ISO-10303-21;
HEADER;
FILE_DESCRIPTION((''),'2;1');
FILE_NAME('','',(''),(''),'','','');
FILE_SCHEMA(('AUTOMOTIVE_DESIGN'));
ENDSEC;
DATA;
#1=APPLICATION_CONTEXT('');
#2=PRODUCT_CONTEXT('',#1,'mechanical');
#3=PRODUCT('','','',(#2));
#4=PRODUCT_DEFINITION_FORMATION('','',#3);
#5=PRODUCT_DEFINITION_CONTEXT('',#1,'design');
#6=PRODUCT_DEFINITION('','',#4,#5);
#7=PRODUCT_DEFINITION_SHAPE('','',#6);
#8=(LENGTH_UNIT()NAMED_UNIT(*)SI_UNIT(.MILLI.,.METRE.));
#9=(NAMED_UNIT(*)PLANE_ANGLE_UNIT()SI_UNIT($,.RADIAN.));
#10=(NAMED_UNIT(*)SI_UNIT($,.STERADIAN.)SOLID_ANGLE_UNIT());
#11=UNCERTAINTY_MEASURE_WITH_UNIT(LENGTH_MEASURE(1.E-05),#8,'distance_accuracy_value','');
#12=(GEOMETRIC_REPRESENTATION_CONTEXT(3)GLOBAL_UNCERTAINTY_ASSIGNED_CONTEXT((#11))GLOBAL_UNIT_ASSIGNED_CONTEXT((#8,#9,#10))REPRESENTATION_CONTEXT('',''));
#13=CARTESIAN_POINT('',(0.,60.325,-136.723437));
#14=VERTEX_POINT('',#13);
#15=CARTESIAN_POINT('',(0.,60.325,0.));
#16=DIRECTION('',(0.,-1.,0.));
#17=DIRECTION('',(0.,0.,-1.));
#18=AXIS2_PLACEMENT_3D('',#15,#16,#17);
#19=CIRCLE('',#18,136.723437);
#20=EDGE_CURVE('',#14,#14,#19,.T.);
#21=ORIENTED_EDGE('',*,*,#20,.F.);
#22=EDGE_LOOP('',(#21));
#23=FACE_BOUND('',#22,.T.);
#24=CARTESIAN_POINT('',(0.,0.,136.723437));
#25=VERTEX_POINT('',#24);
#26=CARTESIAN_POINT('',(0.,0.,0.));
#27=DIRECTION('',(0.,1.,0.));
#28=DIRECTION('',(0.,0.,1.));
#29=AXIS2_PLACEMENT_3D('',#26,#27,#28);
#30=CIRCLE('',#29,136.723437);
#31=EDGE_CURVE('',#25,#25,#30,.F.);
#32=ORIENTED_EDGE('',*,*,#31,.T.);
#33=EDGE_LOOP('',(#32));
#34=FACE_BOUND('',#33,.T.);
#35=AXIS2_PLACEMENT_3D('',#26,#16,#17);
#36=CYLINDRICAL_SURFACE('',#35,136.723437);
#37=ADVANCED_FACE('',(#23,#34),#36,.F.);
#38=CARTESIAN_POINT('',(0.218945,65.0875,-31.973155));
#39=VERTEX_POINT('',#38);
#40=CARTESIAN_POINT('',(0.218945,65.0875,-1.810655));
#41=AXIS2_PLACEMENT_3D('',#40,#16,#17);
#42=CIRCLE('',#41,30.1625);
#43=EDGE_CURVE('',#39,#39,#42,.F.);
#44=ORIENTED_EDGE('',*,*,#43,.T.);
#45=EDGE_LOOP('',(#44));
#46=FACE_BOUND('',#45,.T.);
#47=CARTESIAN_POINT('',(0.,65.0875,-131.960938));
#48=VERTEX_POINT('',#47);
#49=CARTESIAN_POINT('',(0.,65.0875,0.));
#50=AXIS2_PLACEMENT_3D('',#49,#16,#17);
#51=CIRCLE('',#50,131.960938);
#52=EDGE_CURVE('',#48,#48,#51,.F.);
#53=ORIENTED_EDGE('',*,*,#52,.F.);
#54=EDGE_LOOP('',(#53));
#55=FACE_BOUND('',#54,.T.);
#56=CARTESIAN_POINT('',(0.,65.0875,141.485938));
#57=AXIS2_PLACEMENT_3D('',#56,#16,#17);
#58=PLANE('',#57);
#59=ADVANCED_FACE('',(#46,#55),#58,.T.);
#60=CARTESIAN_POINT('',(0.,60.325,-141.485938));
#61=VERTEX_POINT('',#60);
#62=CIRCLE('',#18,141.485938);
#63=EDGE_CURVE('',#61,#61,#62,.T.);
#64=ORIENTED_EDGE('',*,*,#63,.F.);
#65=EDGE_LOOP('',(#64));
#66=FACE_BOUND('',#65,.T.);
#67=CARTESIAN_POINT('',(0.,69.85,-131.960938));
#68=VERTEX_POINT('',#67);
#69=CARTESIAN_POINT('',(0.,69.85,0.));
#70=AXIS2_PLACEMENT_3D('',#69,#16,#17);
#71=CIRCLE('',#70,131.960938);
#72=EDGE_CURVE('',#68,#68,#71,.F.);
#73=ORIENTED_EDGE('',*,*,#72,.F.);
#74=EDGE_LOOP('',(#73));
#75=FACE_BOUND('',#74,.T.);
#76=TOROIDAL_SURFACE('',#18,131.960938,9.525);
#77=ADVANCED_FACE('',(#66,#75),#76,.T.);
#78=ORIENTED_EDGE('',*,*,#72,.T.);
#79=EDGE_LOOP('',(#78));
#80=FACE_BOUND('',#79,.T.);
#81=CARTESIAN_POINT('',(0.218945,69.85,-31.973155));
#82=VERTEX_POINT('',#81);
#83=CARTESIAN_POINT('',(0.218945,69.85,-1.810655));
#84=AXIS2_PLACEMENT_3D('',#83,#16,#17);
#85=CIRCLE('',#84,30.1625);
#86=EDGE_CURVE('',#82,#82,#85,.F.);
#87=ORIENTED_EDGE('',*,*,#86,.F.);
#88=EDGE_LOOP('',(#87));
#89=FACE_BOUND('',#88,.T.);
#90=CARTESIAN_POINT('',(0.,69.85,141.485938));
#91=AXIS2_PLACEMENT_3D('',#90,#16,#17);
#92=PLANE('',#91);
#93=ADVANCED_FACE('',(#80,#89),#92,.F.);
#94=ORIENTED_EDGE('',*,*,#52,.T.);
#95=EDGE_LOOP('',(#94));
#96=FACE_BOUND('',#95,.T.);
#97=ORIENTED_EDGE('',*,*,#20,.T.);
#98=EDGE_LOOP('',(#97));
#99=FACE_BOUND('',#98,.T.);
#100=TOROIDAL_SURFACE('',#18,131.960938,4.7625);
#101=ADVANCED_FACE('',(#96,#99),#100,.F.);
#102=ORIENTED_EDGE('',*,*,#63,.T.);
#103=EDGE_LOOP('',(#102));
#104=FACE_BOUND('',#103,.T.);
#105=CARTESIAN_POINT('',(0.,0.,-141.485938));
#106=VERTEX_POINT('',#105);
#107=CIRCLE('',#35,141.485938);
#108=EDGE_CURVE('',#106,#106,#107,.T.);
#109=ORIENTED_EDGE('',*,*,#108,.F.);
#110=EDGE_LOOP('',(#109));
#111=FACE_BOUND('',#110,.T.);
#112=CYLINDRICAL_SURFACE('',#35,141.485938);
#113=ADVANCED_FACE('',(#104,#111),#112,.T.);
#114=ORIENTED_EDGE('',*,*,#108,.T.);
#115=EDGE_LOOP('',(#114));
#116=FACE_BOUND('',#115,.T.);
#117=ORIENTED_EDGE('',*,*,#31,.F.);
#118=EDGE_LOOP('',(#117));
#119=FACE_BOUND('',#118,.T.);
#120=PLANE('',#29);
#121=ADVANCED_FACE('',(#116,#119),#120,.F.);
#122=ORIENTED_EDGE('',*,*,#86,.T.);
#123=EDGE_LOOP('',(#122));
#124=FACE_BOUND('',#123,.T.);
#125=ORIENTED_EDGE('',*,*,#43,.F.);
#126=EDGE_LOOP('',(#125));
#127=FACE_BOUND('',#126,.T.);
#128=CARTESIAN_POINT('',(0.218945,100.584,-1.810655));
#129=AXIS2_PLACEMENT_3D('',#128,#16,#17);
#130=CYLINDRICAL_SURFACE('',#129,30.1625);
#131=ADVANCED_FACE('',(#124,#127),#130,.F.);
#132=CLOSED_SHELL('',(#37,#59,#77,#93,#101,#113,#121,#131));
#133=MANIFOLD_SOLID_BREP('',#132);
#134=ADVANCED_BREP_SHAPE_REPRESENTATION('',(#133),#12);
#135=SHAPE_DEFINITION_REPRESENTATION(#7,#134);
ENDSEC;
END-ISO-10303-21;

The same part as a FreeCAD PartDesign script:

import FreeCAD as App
import Part
import Sketcher
from FreeCAD import Vector
Q = App.Units.Quantity


def edges_at(feature, points):
    """Names of the edges that pass closest to the given points."""
    edges = feature.Shape.Edges
    near = lambda p: min(range(len(edges)), key=lambda i: edges[i].distToShape(Part.Vertex(*p))[0])
    return sorted({f"Edge{near(p) + 1}" for p in points})


def faces_at(feature, points):
    """Names of the faces that lie closest to the given points."""
    faces = feature.Shape.Faces
    near = lambda p: min(range(len(faces)), key=lambda i: faces[i].distToShape(Part.Vertex(*p))[0])
    return sorted({f"Face{near(p) + 1}" for p in points})

doc = App.newDocument("Part")
params = doc.addObject("Spreadsheet::Sheet", "Params")
for row, (alias, value) in enumerate([
    ("sketch1_width", "2.75 in"),
    ("revolution_angle", "360 deg"),
    ("fillet_radius", "0.375 in"),
    ("thickness_wall", "0.1875 in"),
    ("sketch2_diameter", "2.375 in"),
], start=1):
    params.set(f"A{row}", alias)
    params.set(f"B{row}", "=" + value)
    params.setAlias(f"B{row}", alias)

body = doc.addObject("PartDesign::Body", "Body")

# Sketch on YZ plane
sketch1 = body.newObject("Sketcher::SketchObject", "Sketch")
sketch1.AttachmentSupport = (doc.getObject("YZ_Plane"), [""])
sketch1.MapMode = "FlatFace"
sketch1.addGeometry(Part.LineSegment(Vector(70, 141, 0), Vector(0, 141, 0)), False)
sketch1.addGeometry(Part.LineSegment(Vector(0, 141, 0), Vector(0, 0, 0)), False)
sketch1.addGeometry(Part.LineSegment(Vector(0, 0, 0), Vector(70, 0, 0)), False)
sketch1.addGeometry(Part.LineSegment(Vector(70, 0, 0), Vector(70, 141, 0)), False)
sketch1.addConstraint(Sketcher.Constraint("Coincident", 0, 2, 1, 1))
sketch1.addConstraint(Sketcher.Constraint("Coincident", 1, 2, 2, 1))
sketch1.addConstraint(Sketcher.Constraint("Coincident", 2, 2, 3, 1))
sketch1.addConstraint(Sketcher.Constraint("Coincident", 3, 2, 0, 1))
sketch1.addConstraint(Sketcher.Constraint("Horizontal", 0))
sketch1.addConstraint(Sketcher.Constraint("Vertical", 1))
sketch1.addConstraint(Sketcher.Constraint("Horizontal", 2))
sketch1.addConstraint(Sketcher.Constraint("Vertical", 3))
sketch1.addConstraint(Sketcher.Constraint("Coincident", 1, 2, -1, 1))
sketch1.addConstraint(Sketcher.Constraint("DistanceX", 0, 2, 0, 1, Q("2.75 in")))
sketch1.addConstraint(Sketcher.Constraint("DistanceY", 1, 2, 1, 1, 141.485938))
sketch1.setExpression("Constraints[9]", "Params.sketch1_width")
revolution = body.newObject("PartDesign::Revolution", "Revolution")
revolution.Profile = sketch1
revolution.ReferenceAxis = (sketch1, ["H_Axis"])
revolution.setExpression("Angle", "Params.revolution_angle")
doc.recompute()

fillet = body.newObject("PartDesign::Fillet", "Fillet")
fillet.Base = (revolution, edges_at(revolution, [(0, 69.85, 141.486)]))
fillet.setExpression("Radius", "Params.fillet_radius")
doc.recompute()

thickness = body.newObject("PartDesign::Thickness", "Thickness")
thickness.Base = (fillet, faces_at(fillet, [(0, 0, 0)]))
thickness.setExpression("Value", "Params.thickness_wall")
thickness.Reversed = True
thickness.Join = "Intersection"

# Sketch on XZ plane
sketch2 = body.newObject("Sketcher::SketchObject", "Sketch001")
sketch2.AttachmentSupport = (doc.getObject("XZ_Plane"), [""])
sketch2.MapMode = "FlatFace"
sketch2.AttachmentOffset = App.Placement(Vector(0, 0, -2.75 * 25.4), App.Rotation())
sketch2.addGeometry(Part.Circle(Vector(0, -2, 0), Vector(0, 0, 1), 30), False)
sketch2.addConstraint(Sketcher.Constraint("Diameter", 0, Q("2.375 in")))
sketch2.addConstraint(Sketcher.Constraint("DistanceX", -1, 1, 0, 3, 0.218945))
sketch2.addConstraint(Sketcher.Constraint("DistanceY", 0, 3, -1, 1, 1.810655))
sketch2.setExpression("Constraints[0]", "Params.sketch2_diameter")
pocket1 = body.newObject("PartDesign::Pocket", "Pocket")
pocket1.Profile = sketch2
pocket1.Type = "ThroughAll"
pocket1.Midplane = True

doc.recompute()
